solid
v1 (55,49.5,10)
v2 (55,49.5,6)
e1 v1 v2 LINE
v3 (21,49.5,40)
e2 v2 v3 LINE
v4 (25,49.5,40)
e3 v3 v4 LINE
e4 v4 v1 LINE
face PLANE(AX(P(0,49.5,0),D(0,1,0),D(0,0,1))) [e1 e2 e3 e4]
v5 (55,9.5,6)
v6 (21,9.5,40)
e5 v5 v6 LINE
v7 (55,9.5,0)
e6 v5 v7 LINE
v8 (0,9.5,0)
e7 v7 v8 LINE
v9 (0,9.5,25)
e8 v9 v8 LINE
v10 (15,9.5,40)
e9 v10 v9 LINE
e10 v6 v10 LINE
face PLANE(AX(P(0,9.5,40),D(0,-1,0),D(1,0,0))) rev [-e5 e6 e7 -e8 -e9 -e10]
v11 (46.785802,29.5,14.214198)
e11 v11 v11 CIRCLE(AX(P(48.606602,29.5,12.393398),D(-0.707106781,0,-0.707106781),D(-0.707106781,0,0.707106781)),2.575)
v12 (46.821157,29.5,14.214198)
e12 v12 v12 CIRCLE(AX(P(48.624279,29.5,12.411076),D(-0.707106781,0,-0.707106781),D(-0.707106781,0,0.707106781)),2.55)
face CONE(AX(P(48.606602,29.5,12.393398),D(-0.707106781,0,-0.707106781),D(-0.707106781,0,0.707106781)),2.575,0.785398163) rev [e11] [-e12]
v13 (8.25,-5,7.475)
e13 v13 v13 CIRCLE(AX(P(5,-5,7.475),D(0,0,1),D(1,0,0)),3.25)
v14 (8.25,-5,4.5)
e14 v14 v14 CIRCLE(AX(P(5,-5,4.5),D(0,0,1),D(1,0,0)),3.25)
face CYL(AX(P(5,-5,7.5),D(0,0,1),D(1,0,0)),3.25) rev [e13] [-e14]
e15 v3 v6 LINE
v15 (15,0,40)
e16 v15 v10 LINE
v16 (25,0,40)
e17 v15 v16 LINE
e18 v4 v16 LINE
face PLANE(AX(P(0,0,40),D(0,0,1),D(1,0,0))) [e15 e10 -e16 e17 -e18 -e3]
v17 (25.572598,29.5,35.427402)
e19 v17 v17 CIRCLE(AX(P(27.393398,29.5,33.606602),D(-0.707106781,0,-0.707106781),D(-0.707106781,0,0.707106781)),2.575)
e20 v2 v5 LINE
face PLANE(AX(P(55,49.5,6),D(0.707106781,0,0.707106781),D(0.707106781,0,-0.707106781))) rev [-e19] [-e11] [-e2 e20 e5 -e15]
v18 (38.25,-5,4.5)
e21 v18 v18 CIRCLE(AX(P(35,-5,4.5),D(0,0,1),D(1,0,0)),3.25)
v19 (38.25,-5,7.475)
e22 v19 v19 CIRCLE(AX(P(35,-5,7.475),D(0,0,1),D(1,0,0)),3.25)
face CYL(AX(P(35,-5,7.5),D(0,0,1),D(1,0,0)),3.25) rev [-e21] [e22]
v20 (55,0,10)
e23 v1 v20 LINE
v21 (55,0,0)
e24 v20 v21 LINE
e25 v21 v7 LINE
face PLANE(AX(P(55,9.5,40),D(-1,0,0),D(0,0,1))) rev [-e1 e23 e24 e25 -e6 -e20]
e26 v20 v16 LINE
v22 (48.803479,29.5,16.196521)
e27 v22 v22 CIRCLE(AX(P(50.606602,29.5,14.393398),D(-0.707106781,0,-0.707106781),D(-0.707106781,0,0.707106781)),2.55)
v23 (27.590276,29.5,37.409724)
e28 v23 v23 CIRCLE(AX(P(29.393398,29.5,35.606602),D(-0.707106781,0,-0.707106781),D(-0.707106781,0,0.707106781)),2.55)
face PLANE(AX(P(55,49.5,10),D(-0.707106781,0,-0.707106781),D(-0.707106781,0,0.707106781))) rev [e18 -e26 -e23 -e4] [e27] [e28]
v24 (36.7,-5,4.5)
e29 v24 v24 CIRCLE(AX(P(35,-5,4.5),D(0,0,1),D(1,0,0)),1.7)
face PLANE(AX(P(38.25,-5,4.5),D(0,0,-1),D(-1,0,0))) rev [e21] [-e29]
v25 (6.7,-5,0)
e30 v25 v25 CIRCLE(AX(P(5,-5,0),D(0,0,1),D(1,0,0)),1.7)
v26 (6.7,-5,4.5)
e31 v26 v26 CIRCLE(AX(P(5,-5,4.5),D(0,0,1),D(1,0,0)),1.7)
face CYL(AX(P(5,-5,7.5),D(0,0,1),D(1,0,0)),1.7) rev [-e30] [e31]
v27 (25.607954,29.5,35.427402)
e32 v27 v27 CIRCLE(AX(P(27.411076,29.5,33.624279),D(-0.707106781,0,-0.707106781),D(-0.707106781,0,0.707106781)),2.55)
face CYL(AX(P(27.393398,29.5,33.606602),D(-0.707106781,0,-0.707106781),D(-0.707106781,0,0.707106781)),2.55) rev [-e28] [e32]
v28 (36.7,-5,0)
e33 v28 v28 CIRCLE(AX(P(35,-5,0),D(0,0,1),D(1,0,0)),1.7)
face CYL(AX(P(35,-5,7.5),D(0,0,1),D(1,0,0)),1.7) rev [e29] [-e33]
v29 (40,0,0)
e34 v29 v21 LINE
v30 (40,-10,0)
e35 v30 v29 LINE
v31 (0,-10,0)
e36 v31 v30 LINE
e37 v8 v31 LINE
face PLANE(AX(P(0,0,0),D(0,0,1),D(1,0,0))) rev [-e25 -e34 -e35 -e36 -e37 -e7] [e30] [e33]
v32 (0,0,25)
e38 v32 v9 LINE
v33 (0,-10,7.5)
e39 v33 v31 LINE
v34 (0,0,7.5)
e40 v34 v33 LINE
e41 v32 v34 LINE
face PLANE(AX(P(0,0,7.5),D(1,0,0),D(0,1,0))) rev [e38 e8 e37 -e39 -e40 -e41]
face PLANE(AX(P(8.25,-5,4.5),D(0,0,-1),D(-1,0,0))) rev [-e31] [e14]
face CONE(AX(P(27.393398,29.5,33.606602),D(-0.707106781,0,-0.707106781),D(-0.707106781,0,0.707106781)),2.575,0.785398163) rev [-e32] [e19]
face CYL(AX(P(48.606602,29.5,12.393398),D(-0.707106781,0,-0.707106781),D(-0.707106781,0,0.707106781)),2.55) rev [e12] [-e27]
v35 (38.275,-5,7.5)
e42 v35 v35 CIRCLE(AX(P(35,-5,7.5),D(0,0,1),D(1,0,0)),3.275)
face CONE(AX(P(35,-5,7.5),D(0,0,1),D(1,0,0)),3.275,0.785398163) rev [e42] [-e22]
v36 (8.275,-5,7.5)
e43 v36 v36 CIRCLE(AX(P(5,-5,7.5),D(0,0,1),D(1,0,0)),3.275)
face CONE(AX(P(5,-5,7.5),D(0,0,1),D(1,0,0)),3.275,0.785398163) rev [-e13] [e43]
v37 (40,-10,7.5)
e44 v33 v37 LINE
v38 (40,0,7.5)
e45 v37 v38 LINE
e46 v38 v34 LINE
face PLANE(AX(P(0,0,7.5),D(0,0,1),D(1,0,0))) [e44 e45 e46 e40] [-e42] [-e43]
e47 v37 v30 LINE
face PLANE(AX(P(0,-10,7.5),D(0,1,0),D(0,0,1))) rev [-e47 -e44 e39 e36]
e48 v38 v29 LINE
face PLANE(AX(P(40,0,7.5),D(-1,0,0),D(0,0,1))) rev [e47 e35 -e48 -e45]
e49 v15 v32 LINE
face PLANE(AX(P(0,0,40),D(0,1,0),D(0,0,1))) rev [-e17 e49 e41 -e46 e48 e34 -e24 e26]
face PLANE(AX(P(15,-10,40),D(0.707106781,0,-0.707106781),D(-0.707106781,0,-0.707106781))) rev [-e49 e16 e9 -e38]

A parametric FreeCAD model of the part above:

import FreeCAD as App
import Part
import Sketcher
Q = App.Units.Quantity


def add_polygon(sketch, points):
    """Adds a closed chain of lines whose ends are joined by coincident constraints."""
    first, n = sketch.GeometryCount, len(points)
    for a, b in zip(points, points[1:] + points[:1]):
        sketch.addGeometry(Part.LineSegment(App.Vector(*a, 0), App.Vector(*b, 0)), False)
    for i in range(n):
        sketch.addConstraint(Sketcher.Constraint("Coincident", first + i, 2, first + (i + 1) % n, 1))

doc = App.newDocument("Part")
body = doc.addObject("PartDesign::Body", "Body")

sketch1 = body.newObject("Sketcher::SketchObject", "Sketch")
sketch1.AttachmentSupport = (doc.getObject("XY_Plane"), [""])
sketch1.MapMode = "FlatFace"
add_polygon(sketch1, [(0, 0), (0, -10), (40, -10), (40, 0)])
sketch1.addConstraint([
    Sketcher.Constraint("Vertical", 0),
    Sketcher.Constraint("Horizontal", 1),
    Sketcher.Constraint("Vertical", 2),
    Sketcher.Constraint("Horizontal", 3),
    Sketcher.Constraint("Coincident", 3, 2, -1, 1),
    Sketcher.Constraint("DistanceX", 1, 1, 1, 2, 40.0),
    Sketcher.Constraint("DistanceY", 0, 2, 0, 1, 10.0),
])
pad1 = body.newObject("PartDesign::Pad", "Pad")
pad1.Profile = sketch1
pad1.Length = 7.5

sketch2 = body.newObject("Sketcher::SketchObject", "Sketch001")
sketch2.AttachmentSupport = (doc.getObject("YZ_Plane"), [""])
sketch2.MapMode = "FlatFace"
sketch2.AttachmentOffset = App.Placement(App.Vector(0, 0, 35), App.Rotation())
add_polygon(sketch2, [(-5, 0), (-5, 7.5), (-8.275, 7.5), (-8.25, 7.475), (-8.25, 4.5), (-6.7, 4.5), (-6.7, 0)])
sketch2.addGeometry(Part.LineSegment(App.Vector(-5, 7.5, 0), App.Vector(-5, 0, 0)), True)
sketch2.addConstraint([
    Sketcher.Constraint("Vertical", 0),
    Sketcher.Constraint("Horizontal", 1),
    Sketcher.Constraint("Vertical", 3),
    Sketcher.Constraint("Horizontal", 4),
    Sketcher.Constraint("Vertical", 5),
    Sketcher.Constraint("Horizontal", 6),
    Sketcher.Constraint("Vertical", 7),
    Sketcher.Constraint("Coincident", 7, 1, 0, 2),
    Sketcher.Constraint("PointOnObject", 5, 2, -1),
    Sketcher.Constraint("PointOnObject", 7, 2, -1),
    Sketcher.Constraint("Angle", 2, Q("-45 deg")),
    Sketcher.Constraint("DistanceX", 6, 1, 6, 2, 1.7),
    Sketcher.Constraint("DistanceY", 0, 1, 0, 2, 7.5),
    Sketcher.Constraint("DistanceY", 5, 2, 5, 1, 4.5),
    Sketcher.Constraint("DistanceX", 0, 2, -1, 1, 5.0),
    Sketcher.Constraint("DistanceX", 4, 1, 4, 2, 1.55),
    Sketcher.Constraint("DistanceX", 1, 2, 1, 1, 3.275),
])
groove = body.newObject("PartDesign::Groove", "Groove")
groove.Profile = sketch2
groove.ReferenceAxis = (sketch2, ["Axis0"])
groove.Angle = 360
doc.recompute()

linearpattern = body.newObject("PartDesign::LinearPattern", "LinearPattern")
linearpattern.Originals = [groove]
linearpattern.Direction = (doc.getObject("X_Axis"), [""])
linearpattern.Mode = "offset"
linearpattern.Offset = 30
linearpattern.Occurrences = 2
linearpattern.Reversed = True
body.Tip = linearpattern

sketch3 = body.newObject("Sketcher::SketchObject", "Sketch002")
sketch3.AttachmentSupport = (doc.getObject("XY_Plane"), [""])
sketch3.MapMode = "FlatFace"
add_polygon(sketch3, [(0, 10), (0, 0), (55, 0), (55, 10)])
sketch3.addConstraint([
    Sketcher.Constraint("Vertical", 0),
    Sketcher.Constraint("Horizontal", 1),
    Sketcher.Constraint("Vertical", 2),
    Sketcher.Constraint("Horizontal", 3),
    Sketcher.Constraint("Coincident", 0, 2, -1, 1),
    Sketcher.Constraint("DistanceX", 1, 1, 1, 2, 55.0),
    Sketcher.Constraint("DistanceY", 0, 2, 0, 1, 9.5),
])
pad2 = body.newObject("PartDesign::Pad", "Pad001")
pad2.Profile = sketch3
pad2.Length = 40

sketch4 = body.newObject("Sketcher::SketchObject", "Sketch003")
sketch4.AttachmentSupport = (doc.getObject("XZ_Plane"), [""])
sketch4.MapMode = "FlatFace"
sketch4.AttachmentOffset = App.Placement(App.Vector(0, 0, -9.5), App.Rotation())
add_polygon(sketch4, [(25, 40), (55, 10), (55, 6), (21, 40)])
sketch4.addConstraint([
    Sketcher.Constraint("Vertical", 1),
    Sketcher.Constraint("Horizontal", 3),
    Sketcher.Constraint("Parallel", 0, 2),
    Sketcher.Constraint("Equal", 3, 1),
    Sketcher.Constraint("DistanceX", 3, 1, 3, 2, 4.0),
    Sketcher.Constraint("DistanceX", -1, 1, 0, 2, 55.0),
    Sketcher.Constraint("DistanceY", -1, 1, 0, 2, 10.0),
    Sketcher.Constraint("DistanceX", -1, 1, 2, 2, 21.0),
])
pad3 = body.newObject("PartDesign::Pad", "Pad002")
pad3.Profile = sketch4
pad3.Length = 40
pad3.Reversed = True

sketch5 = body.newObject("Sketcher::SketchObject", "Sketch004")
sketch5.AttachmentSupport = (doc.getObject("XZ_Plane"), [""])
sketch5.MapMode = "FlatFace"
sketch5.AttachmentOffset = App.Placement(App.Vector(0, 0, -9.5), App.Rotation())
add_polygon(sketch5, [(55, 10), (25, 40), (55, 40)])
sketch5.addConstraint([
    Sketcher.Constraint("Horizontal", 1),
    Sketcher.Constraint("Vertical", 2),
    Sketcher.Constraint("Equal", 1, 2),
    Sketcher.Constraint("DistanceX", 1, 1, 1, 2, 30.0),
    Sketcher.Constraint("DistanceX", -1, 1, 0, 2, 25.0),
    Sketcher.Constraint("DistanceY", -1, 1, 0, 2, 40.0),
])
pocket1 = body.newObject("PartDesign::Pocket", "Pocket")
pocket1.Profile = sketch5
pocket1.Type = "ThroughAll"
pocket1.Reversed = True

sketch6 = body.newObject("Sketcher::SketchObject", "Sketch005")
sketch6.Placement = App.Placement(App.Vector(30.5, 0, 30.5), App.Rotation(App.Vector(-0.707106781, 0, 0.707106781), App.Vector(0, 0.999999999, 0), App.Vector(-0.707106781, 0, -0.707106781), "ZXY"))
sketch6.addGeometry([
    Part.Circle(App.Vector(4.4, 29.5, 0), App.Vector(0, 0, 1), 2.5),
    Part.Circle(App.Vector(-25.6, 29.5, 0), App.Vector(0, 0, 1), 2.5),
], False)
sketch6.addConstraint([
    Sketcher.Constraint("Equal", 0, 1),
    Sketcher.Constraint("Horizontal", 0, 3, 1, 3),
    Sketcher.Constraint("Diameter", 0, 5.1),
    Sketcher.Constraint("DistanceX", 1, 3, 0, 3, 30.0),
    Sketcher.Constraint("DistanceY", -1, 1, 0, 3, 29.5),
    Sketcher.Constraint("DistanceX", -1, 1, 0, 3, 4.393398),
])
doc.recompute()
hole = body.newObject("PartDesign::Hole", "Hole")
hole.Profile = sketch6
hole.ThreadType = "None"
hole.Diameter = 5.1
hole.DepthType = "Dimension"
hole.Depth = 2.828427
hole.DrillPoint = "Flat"
hole.HoleCutType = "Countersink"
hole.HoleCutDiameter = 5.15
hole.HoleCutCountersinkAngle = 90

sketch7 = body.newObject("Sketcher::SketchObject", "Sketch006")
sketch7.AttachmentSupport = (doc.getObject("XZ_Plane"), [""])
sketch7.MapMode = "FlatFace"
sketch7.AttachmentOffset = App.Placement(App.Vector(0, 0, -9.5), App.Rotation())
add_polygon(sketch7, [(0, 25), (0, 40), (15, 40)])
sketch7.addConstraint([
    Sketcher.Constraint("Vertical", 0),
    Sketcher.Constraint("Horizontal", 1),
    Sketcher.Constraint("PointOnObject", 0, 2, -2),
    Sketcher.Constraint("Equal", 1, 0),
    Sketcher.Constraint("DistanceX", 1, 1, 1, 2, 15.0),
    Sketcher.Constraint("DistanceY", -1, 1, 0, 2, 40.0),
])
pocket2 = body.newObject("PartDesign::Pocket", "Pocket001")
pocket2.Profile = sketch7
pocket2.Type = "ThroughAll"
pocket2.Reversed = True

doc.recompute()
